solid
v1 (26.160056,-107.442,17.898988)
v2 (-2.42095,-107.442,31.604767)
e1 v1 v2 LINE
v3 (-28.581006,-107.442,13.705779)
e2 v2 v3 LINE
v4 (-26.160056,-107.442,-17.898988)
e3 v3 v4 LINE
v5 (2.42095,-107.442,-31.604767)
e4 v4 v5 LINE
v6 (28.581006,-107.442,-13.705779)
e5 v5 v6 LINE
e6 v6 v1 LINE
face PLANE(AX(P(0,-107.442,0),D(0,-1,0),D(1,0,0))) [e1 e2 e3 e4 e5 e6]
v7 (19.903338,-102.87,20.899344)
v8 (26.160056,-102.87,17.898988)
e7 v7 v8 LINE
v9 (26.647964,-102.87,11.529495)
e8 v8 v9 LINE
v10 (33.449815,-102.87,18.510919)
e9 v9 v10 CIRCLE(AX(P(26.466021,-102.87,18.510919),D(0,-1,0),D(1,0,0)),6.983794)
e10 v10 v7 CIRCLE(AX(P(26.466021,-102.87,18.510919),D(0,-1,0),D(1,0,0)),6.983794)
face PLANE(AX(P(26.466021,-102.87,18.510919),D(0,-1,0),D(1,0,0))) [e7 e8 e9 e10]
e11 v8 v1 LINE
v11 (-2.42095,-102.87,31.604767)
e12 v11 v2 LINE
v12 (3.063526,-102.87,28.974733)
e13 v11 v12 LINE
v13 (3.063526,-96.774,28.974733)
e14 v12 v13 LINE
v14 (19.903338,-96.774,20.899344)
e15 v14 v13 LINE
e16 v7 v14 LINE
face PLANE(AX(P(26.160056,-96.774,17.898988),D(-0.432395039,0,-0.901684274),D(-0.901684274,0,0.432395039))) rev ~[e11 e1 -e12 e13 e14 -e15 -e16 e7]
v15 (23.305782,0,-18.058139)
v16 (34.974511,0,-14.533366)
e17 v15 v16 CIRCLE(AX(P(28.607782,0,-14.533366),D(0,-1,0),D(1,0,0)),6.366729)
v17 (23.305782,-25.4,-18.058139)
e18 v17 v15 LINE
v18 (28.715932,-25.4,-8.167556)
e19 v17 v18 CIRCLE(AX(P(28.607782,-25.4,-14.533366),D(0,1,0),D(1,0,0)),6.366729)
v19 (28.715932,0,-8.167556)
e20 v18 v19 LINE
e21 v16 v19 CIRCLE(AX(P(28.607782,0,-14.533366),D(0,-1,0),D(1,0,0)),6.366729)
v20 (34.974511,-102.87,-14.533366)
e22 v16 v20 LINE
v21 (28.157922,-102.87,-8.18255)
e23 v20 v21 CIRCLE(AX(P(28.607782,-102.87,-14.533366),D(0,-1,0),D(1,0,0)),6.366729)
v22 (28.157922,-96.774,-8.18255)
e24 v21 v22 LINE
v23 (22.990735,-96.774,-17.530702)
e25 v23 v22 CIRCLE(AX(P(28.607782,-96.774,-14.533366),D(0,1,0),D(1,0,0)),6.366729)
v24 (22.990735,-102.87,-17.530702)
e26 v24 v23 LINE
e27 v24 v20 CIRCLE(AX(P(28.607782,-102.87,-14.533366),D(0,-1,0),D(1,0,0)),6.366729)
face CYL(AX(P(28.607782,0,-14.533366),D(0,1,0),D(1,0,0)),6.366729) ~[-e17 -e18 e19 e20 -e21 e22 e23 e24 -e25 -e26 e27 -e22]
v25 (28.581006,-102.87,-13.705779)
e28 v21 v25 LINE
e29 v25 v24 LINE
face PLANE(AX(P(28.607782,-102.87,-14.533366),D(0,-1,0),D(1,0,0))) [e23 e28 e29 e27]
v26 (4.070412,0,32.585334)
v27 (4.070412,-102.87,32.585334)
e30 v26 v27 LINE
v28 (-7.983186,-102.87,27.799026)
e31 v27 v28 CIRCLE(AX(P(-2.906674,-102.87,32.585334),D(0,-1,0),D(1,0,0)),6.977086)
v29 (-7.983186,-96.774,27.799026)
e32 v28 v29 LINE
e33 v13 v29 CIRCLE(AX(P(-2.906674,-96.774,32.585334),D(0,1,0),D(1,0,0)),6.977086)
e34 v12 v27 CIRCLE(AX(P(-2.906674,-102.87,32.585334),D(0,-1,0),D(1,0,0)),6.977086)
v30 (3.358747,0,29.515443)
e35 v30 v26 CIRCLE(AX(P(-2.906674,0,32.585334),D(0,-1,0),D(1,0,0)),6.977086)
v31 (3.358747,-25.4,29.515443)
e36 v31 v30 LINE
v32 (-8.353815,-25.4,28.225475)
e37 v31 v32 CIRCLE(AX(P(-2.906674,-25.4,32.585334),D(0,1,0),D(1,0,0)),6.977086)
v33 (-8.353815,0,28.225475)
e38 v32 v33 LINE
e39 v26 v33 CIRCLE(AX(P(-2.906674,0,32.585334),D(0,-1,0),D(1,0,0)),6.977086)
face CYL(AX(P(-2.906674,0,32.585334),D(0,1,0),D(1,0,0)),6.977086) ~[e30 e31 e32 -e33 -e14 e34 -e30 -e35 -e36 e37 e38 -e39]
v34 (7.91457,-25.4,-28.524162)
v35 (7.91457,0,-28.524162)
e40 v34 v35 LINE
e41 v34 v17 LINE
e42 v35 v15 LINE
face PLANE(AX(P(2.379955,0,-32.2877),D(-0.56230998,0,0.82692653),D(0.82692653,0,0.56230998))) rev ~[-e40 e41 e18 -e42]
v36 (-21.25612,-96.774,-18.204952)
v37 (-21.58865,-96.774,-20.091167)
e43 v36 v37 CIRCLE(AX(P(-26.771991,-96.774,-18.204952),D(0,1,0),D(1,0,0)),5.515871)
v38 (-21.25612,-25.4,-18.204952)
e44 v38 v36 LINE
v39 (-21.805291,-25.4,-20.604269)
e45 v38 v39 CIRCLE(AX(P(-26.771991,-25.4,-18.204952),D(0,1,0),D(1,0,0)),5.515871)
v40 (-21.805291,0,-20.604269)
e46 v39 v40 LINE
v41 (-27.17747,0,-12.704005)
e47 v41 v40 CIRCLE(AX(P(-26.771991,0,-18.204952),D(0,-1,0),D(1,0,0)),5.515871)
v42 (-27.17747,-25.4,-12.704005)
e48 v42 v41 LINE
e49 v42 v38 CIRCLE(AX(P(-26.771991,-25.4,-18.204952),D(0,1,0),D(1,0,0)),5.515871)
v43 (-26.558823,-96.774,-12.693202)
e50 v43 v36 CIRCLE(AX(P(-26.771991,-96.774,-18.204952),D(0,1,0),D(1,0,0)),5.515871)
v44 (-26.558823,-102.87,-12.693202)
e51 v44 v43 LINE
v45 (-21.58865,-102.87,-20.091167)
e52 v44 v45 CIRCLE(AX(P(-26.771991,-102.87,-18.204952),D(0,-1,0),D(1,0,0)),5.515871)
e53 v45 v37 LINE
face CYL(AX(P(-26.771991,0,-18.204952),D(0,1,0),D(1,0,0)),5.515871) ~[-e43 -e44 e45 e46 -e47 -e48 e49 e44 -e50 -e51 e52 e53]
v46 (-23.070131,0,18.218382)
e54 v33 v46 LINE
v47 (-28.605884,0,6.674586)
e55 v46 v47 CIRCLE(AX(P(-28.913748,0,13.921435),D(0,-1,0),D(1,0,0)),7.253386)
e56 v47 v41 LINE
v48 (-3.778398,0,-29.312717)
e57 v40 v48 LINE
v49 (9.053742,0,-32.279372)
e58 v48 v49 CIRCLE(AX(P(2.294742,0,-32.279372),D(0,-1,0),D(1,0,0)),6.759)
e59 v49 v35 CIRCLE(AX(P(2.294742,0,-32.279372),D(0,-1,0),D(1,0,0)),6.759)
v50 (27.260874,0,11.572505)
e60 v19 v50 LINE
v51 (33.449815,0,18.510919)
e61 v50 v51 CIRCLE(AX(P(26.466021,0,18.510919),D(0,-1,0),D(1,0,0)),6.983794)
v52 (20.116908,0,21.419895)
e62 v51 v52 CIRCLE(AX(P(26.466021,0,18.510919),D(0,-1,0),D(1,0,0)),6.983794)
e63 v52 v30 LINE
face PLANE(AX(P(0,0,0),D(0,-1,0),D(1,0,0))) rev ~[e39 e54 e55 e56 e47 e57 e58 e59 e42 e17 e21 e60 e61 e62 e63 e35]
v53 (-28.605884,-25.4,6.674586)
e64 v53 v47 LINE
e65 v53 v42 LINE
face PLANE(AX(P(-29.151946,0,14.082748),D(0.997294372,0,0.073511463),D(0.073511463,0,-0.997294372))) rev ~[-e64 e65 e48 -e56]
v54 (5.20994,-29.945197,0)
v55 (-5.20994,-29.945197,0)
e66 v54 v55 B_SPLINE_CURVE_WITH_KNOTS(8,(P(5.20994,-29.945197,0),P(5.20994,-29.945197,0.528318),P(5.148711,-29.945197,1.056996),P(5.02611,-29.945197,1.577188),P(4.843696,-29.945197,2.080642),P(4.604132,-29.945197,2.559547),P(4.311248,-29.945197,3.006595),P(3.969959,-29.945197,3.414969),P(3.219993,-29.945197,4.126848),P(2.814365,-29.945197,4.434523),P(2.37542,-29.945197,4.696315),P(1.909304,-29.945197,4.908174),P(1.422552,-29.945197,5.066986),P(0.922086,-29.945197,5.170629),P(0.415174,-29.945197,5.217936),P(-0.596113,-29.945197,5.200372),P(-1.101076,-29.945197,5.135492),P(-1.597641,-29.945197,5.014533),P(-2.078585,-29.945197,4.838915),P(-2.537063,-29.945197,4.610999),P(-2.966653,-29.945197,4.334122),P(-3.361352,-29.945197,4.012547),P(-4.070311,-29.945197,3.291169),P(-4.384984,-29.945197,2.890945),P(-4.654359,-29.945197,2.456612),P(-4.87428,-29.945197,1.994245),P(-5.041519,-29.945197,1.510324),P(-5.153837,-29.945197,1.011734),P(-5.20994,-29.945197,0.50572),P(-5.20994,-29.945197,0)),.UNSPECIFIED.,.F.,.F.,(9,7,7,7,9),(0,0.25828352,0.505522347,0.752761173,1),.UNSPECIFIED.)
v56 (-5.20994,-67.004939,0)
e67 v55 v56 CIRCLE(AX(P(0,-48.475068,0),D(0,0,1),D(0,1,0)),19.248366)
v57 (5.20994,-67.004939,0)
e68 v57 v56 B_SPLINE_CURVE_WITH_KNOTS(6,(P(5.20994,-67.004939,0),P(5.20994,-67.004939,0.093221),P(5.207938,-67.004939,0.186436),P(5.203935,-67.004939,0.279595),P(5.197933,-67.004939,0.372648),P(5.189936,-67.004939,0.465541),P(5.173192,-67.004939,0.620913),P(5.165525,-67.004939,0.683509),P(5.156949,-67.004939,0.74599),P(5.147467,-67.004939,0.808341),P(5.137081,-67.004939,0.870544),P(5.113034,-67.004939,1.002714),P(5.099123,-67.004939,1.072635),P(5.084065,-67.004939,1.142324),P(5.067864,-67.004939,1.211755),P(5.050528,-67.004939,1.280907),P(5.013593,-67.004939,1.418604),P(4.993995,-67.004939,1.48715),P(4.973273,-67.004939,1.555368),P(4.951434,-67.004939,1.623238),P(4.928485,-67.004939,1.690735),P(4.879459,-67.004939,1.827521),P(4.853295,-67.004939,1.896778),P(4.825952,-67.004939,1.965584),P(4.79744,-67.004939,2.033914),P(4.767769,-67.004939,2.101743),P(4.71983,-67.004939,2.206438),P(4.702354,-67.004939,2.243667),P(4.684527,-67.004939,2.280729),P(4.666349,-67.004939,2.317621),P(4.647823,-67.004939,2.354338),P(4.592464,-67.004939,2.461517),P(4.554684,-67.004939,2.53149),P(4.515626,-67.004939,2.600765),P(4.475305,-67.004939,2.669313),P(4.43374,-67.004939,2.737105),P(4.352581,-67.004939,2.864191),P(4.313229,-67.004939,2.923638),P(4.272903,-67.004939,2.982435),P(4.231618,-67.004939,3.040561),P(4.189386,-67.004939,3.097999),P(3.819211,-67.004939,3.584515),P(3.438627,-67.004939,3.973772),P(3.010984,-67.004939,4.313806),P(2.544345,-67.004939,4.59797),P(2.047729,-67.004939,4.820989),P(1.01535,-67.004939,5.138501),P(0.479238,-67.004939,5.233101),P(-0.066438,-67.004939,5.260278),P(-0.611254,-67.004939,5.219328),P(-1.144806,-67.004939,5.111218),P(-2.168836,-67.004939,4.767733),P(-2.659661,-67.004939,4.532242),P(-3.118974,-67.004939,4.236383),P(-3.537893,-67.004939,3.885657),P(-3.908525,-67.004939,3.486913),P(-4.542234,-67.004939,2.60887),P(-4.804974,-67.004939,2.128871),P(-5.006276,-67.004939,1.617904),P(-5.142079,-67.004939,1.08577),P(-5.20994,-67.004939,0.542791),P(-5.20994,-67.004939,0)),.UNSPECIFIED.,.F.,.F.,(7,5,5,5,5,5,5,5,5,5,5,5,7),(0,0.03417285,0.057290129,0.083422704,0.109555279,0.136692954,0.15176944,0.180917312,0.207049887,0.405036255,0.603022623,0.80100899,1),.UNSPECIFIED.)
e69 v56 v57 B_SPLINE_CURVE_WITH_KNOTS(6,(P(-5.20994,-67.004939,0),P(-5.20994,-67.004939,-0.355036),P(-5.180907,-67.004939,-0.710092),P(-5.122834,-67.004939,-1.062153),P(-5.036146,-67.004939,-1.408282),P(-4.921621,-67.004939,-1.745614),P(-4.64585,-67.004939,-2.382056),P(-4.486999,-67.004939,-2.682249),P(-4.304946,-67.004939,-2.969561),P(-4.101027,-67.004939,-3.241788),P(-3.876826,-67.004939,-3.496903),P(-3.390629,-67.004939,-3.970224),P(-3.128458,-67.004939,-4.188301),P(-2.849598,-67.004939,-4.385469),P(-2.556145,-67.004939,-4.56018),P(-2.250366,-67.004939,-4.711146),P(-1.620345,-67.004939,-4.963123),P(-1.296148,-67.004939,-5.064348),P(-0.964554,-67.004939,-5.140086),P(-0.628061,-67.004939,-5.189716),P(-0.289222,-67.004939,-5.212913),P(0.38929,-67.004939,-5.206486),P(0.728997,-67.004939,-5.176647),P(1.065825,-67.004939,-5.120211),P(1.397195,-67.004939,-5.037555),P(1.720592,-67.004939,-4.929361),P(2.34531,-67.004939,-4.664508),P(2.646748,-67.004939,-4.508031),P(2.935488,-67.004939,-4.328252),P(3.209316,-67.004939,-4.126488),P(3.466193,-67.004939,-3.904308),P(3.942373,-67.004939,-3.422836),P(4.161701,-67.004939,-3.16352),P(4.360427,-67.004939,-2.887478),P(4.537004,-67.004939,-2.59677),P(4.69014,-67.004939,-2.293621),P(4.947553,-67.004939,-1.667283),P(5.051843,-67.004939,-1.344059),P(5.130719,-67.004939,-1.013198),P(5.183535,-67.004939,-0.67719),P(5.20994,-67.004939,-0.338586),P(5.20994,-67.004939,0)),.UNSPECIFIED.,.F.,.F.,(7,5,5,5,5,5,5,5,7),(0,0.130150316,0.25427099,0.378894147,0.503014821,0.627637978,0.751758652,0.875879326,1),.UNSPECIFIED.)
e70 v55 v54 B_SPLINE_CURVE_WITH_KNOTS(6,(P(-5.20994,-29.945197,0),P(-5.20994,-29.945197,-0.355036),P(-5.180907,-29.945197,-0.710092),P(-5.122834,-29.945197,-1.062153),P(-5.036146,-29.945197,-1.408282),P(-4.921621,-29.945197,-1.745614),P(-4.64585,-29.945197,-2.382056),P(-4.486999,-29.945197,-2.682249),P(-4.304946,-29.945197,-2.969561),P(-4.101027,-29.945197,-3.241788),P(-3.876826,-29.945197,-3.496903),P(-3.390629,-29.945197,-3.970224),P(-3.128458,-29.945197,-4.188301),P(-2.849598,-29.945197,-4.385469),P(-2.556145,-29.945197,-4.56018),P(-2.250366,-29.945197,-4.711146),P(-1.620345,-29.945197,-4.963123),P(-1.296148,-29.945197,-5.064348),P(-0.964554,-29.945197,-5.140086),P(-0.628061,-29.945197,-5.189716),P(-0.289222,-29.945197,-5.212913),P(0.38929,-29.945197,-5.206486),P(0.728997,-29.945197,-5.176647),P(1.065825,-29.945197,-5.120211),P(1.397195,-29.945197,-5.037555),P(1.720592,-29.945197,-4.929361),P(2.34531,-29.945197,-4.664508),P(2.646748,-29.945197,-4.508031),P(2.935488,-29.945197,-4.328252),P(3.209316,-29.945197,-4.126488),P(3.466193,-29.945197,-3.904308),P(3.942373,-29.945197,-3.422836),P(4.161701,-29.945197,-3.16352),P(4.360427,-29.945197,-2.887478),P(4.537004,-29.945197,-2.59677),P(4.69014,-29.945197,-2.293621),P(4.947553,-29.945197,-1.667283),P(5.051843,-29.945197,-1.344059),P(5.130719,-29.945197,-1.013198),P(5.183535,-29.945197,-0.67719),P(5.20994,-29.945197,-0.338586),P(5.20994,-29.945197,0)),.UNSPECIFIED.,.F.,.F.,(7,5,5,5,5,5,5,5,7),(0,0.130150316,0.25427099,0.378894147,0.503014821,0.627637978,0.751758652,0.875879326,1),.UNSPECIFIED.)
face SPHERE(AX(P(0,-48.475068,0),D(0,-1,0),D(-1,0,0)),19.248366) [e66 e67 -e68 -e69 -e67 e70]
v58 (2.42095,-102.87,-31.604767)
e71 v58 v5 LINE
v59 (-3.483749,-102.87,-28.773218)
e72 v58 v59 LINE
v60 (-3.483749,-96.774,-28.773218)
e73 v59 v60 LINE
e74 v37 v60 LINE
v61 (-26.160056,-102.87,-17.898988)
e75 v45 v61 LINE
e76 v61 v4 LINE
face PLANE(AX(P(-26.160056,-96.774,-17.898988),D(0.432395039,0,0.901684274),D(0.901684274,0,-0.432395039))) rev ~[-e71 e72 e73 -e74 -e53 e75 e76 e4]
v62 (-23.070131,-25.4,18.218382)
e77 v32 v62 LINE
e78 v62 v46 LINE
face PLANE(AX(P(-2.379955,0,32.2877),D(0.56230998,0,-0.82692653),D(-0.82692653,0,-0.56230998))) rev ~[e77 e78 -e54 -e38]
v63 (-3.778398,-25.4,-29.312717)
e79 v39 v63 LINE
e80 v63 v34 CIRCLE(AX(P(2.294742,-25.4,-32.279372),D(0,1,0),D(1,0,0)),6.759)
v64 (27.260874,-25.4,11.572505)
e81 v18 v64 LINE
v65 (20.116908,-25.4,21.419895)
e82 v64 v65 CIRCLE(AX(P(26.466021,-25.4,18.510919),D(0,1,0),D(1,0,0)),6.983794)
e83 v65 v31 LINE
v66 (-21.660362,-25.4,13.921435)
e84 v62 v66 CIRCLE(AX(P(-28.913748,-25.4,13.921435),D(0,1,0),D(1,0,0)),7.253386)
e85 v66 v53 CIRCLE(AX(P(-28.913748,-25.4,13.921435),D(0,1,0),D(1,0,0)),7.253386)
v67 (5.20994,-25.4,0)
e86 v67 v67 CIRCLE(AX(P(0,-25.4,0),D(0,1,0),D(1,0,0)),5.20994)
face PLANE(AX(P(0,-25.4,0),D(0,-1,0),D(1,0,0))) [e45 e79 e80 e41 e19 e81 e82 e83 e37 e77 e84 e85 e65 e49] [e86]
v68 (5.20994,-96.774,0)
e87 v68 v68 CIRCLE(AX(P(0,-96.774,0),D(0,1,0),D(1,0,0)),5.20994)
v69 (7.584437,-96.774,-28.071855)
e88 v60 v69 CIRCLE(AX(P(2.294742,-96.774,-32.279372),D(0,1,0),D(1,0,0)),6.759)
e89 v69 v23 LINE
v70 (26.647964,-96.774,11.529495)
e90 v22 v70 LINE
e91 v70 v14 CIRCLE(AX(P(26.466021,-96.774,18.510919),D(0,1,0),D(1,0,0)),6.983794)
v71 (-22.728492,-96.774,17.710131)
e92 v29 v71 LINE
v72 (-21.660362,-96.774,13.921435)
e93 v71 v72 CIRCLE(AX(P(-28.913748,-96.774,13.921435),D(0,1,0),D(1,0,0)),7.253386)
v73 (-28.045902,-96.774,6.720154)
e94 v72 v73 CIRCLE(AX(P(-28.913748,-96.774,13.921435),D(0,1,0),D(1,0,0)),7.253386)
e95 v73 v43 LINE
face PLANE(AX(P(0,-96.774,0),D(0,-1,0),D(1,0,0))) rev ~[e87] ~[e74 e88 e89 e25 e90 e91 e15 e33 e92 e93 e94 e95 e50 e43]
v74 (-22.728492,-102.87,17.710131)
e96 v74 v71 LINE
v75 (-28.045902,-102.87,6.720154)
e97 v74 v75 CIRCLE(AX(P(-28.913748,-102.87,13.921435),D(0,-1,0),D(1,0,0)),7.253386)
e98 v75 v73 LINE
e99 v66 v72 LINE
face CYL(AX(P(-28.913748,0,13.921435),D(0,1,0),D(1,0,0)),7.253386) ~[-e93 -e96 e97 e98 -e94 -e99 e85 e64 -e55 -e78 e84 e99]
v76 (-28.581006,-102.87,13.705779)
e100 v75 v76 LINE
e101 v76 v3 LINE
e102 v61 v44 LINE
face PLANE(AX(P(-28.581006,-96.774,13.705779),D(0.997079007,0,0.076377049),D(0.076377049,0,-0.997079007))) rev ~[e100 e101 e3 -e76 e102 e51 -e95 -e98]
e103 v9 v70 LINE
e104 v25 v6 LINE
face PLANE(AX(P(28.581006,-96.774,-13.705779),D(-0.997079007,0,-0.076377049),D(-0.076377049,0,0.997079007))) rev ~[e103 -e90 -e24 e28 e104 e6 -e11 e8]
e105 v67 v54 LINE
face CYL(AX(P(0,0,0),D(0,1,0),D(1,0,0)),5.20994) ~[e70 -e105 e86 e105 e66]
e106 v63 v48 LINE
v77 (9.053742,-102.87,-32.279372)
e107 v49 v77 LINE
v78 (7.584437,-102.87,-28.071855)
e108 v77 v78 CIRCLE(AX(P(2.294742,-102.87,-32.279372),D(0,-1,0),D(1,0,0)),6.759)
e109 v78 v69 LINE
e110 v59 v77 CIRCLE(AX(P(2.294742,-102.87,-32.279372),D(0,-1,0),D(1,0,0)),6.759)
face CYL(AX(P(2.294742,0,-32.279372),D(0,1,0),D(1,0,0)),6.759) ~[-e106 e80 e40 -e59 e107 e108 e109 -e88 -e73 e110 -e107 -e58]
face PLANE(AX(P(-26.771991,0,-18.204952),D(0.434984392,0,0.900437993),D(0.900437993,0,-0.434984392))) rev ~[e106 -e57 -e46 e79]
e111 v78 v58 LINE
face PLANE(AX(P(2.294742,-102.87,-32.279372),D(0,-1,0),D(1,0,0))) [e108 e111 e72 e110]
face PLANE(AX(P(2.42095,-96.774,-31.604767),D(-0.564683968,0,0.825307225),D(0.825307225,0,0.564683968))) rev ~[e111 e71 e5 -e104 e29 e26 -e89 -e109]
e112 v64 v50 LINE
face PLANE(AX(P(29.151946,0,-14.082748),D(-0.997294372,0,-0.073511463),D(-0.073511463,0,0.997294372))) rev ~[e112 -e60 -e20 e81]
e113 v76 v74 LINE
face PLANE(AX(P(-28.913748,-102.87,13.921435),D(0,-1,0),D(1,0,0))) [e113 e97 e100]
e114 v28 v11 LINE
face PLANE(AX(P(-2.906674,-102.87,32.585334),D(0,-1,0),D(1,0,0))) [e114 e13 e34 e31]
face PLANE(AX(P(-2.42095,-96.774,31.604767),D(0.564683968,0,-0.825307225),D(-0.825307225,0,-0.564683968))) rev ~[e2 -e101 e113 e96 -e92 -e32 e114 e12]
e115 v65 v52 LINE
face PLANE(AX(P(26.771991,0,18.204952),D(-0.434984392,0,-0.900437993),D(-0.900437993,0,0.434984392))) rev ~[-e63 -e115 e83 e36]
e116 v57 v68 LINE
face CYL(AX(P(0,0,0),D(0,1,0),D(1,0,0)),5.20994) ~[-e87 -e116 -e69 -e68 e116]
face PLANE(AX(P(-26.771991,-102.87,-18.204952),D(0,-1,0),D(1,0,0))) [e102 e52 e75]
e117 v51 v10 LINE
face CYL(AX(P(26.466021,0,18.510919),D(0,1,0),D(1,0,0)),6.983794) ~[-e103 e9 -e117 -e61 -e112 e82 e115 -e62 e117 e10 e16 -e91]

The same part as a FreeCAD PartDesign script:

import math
import FreeCAD as App
import Part
import Sketcher

V = App.Vector
Q = App.Units.Quantity


def add_polygon(sketch, points):
    """Adds a closed chain of lines whose ends are joined by coincident constraints."""
    first, n = sketch.GeometryCount, len(points)
    for a, b in zip(points, points[1:] + points[:1]):
        sketch.addGeometry(Part.LineSegment(App.Vector(*a, 0), App.Vector(*b, 0)), False)
    for i in range(n):
        sketch.addConstraint(Sketcher.Constraint("Coincident", first + i, 2, first + (i + 1) % n, 1))

doc = App.newDocument("Part")
body = doc.addObject("PartDesign::Body", "Body")

# Sketch on XZ plane
sketch1 = doc.addObject("Sketcher::SketchObject", "Sketch")
body.addObject(sketch1)
sketch1.AttachmentSupport = (doc.XZ_Plane, [""])
sketch1.MapMode = "FlatFace"
add_polygon(sketch1, [(-29, 14), (-27, -18), (2, -32), (29, -14), (27, 18), (-2, 32)])  # lines 0-5
sketch1.addConstraint(Sketcher.Constraint("Symmetric", 0, 2, 3, 2, -1, 1))
sketch1.addConstraint(Sketcher.Constraint("Symmetric", 1, 2, 4, 2, -1, 1))
sketch1.addConstraint(Sketcher.Constraint("Symmetric", 2, 2, 5, 2, -1, 1))
sketch1.addConstraint(Sketcher.Constraint("Equal", 0, 1))
sketch1.addConstraint(Sketcher.Constraint("Equal", 1, 2))
sketch1.addConstraint(Sketcher.Constraint("DistanceY", 1, 2, -1, 1, Q("32.2877 mm")))
sketch1.addConstraint(Sketcher.Constraint("DistanceY", 2, 2, 3, 2, Q("32.2877 mm")))
sketch1.addConstraint(Sketcher.Constraint("DistanceX", 4, 2, 2, 2, Q("31.531901 mm")))
sketch1.addConstraint(Sketcher.Constraint("DistanceX", 0, 2, -1, 1, Q("26.771991 mm")))
pad1 = doc.addObject("PartDesign::Pad", "Pad")
body.addObject(pad1)
pad1.Profile = sketch1
pad1.Length = Q("1 in")

# Sketch on XZ plane
sketch2 = doc.addObject("Sketcher::SketchObject", "Sketch001")
body.addObject(sketch2)
sketch2.AttachmentSupport = (doc.XZ_Plane, [""])
sketch2.MapMode = "FlatFace"
sketch2.addGeometry(Part.Circle(V(-29, 14, 0), V(0, 0, 1), 7), False)
sketch2.addGeometry(Part.Circle(V(-27, -18, 0), V(0, 0, 1), 6), False)
sketch2.addGeometry(Part.Circle(V(2, -32, 0), V(0, 0, 1), 7), False)
sketch2.addGeometry(Part.Circle(V(29, -15, 0), V(0, 0, 1), 6), False)
sketch2.addGeometry(Part.Circle(V(26, 19, 0), V(0, 0, 1), 7), False)
sketch2.addGeometry(Part.Circle(V(-3, 33, 0), V(0, 0, 1), 7), False)
sketch2.addConstraint(Sketcher.Constraint("Diameter", 2, Q("13.517999 mm")))
sketch2.addConstraint(Sketcher.Constraint("Diameter", 0, Q("14.506772 mm")))
sketch2.addConstraint(Sketcher.Constraint("Diameter", 1, Q("11.031741 mm")))
sketch2.addConstraint(Sketcher.Constraint("Diameter", 4, Q("13.967588 mm")))
sketch2.addConstraint(Sketcher.Constraint("Diameter", 5, Q("13.954171 mm")))
sketch2.addConstraint(Sketcher.Constraint("Diameter", 3, Q("12.733457 mm")))
sketch2.addConstraint(Sketcher.Constraint("DistanceY", 3, 3, 0, 3, Q("28.454801 mm")))
sketch2.addConstraint(Sketcher.Constraint("DistanceY", 0, 3, 5, 3, Q("18.663899 mm")))
sketch2.addConstraint(Sketcher.Constraint("DistanceX", 1, 3, -1, 1, Q("26.771991 mm")))
sketch2.addConstraint(Sketcher.Constraint("DistanceY", 1, 3, -1, 1, Q("18.204952 mm")))
sketch2.addConstraint(Sketcher.Constraint("DistanceX", -1, 1, 2, 3, Q("2.294742 mm")))
sketch2.addConstraint(Sketcher.Constraint("DistanceX", -1, 1, 3, 3, Q("28.607782 mm")))
sketch2.addConstraint(Sketcher.Constraint("DistanceX", -1, 1, 4, 3, Q("26.466021 mm")))
sketch2.addConstraint(Sketcher.Constraint("DistanceY", -1, 1, 4, 3, Q("18.510919 mm")))
sketch2.addConstraint(Sketcher.Constraint("DistanceY", 2, 3, 1, 3, Q("14.074421 mm")))
sketch2.addConstraint(Sketcher.Constraint("DistanceX", 0, 3, 2, 3, Q("31.208489 mm")))
sketch2.addConstraint(Sketcher.Constraint("DistanceY", -1, 1, 0, 3, Q("13.921435 mm")))
sketch2.addConstraint(Sketcher.Constraint("DistanceX", 5, 3, -1, 1, Q("2.906674 mm")))
pad2 = doc.addObject("PartDesign::Pad", "Pad001")
body.addObject(pad2)
pad2.Profile = sketch2
pad2.Length = Q("4.05 in")

# Sketch on XZ plane
sketch3 = doc.addObject("Sketcher::SketchObject", "Sketch002")
body.addObject(sketch3)
sketch3.AttachmentSupport = (doc.XZ_Plane, [""])
sketch3.MapMode = "FlatFace"
sketch3.addGeometry(Part.Circle(V(0, 0, 0), V(0, 0, 1), 5), False)
sketch3.addConstraint(Sketcher.Constraint("Coincident", 0, 3, -1, 1))
sketch3.addConstraint(Sketcher.Constraint("Diameter", 0, Q("10.419879 mm")))
pad3 = doc.addObject("PartDesign::Pad", "Pad002")
body.addObject(pad3)
pad3.Profile = sketch3
pad3.Length = Q("4.02 in")

# Sketch on XY plane
sketch4 = doc.addObject("Sketcher::SketchObject", "Sketch003")
body.addObject(sketch4)
sketch4.AttachmentSupport = (doc.XY_Plane, [""])
sketch4.MapMode = "FlatFace"
sketch4.addGeometry(Part.LineSegment(V(0, -68, 0), V(0, -29, 0)), False)
sketch4.addGeometry(Part.ArcOfCircle(Part.Circle(V(0, -48, 0), V(0, 0, 1), 19), math.radians(90), math.radians(270)), False)
sketch4.addConstraint(Sketcher.Constraint("Coincident", 0, 1, 1, 2))
sketch4.addConstraint(Sketcher.Constraint("Coincident", 1, 1, 0, 2))
sketch4.addConstraint(Sketcher.Constraint("Vertical", 0))
sketch4.addConstraint(Sketcher.Constraint("PointOnObject", 1, 3, -2))
sketch4.addConstraint(Sketcher.Constraint("PointOnObject", 0, 1, -2))
sketch4.addConstraint(Sketcher.Constraint("Radius", 1, Q("19.248366 mm")))
sketch4.addConstraint(Sketcher.Constraint("DistanceY", 1, 1, -1, 1, Q("29.226702 mm")))
revolution = doc.addObject("PartDesign::Revolution", "Revolution")
body.addObject(revolution)
revolution.Profile = sketch4
revolution.ReferenceAxis = (sketch4, ["V_Axis"])
revolution.Angle = 360

# Sketch on XZ plane
sketch5 = doc.addObject("Sketcher::SketchObject", "Sketch004")
body.addObject(sketch5)
sketch5.AttachmentSupport = (doc.XZ_Plane, [""])
sketch5.MapMode = "FlatFace"
sketch5.AttachmentOffset = App.Placement(V(0, 0, 3.81 * 25.4), App.Rotation())
add_polygon(sketch5, [(-29, 14), (-26, -18), (2, -32), (29, -14), (26, 18), (-2, 32)])  # lines 0-5
sketch5.addConstraint(Sketcher.Constraint("Symmetric", 0, 2, 3, 2, -1, 1))
sketch5.addConstraint(Sketcher.Constraint("Symmetric", 1, 2, 4, 2, -1, 1))
sketch5.addConstraint(Sketcher.Constraint("Symmetric", 2, 2, 5, 2, -1, 1))
sketch5.addConstraint(Sketcher.Constraint("Equal", 0, 1))
sketch5.addConstraint(Sketcher.Constraint("Equal", 1, 2))
sketch5.addConstraint(Sketcher.Constraint("DistanceX", 4, 2, 1, 2, Q("4.841901 mm")))
sketch5.addConstraint(Sketcher.Constraint("DistanceY", 2, 2, -1, 1, Q("13.705779 mm")))
sketch5.addConstraint(Sketcher.Constraint("DistanceY", 1, 2, 0, 2, Q("13.705779 mm")))
sketch5.addConstraint(Sketcher.Constraint("DistanceX", 0, 2, 2, 2, Q("54.741062 mm")))
pad4 = doc.addObject("PartDesign::Pad", "Pad003")
body.addObject(pad4)
pad4.Profile = sketch5
pad4.Length = Q("0.42 in")

doc.recompute()
